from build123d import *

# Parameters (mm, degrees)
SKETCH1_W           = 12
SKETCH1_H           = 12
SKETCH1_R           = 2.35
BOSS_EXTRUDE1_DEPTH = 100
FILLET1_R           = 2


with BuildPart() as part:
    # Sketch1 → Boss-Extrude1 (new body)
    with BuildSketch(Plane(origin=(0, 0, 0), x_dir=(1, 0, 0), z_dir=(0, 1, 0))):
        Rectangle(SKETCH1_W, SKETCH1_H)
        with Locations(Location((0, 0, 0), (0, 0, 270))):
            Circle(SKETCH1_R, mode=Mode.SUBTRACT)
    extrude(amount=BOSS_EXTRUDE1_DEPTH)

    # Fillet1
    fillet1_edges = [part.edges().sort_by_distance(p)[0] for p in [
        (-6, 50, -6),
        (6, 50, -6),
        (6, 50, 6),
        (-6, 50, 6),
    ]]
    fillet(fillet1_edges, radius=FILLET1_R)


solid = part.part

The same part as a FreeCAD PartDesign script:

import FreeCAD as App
import Part
import Sketcher

V = App.Vector


def edges_at(feature, points):
    """Names of the edges that pass closest to the given points."""
    edges = feature.Shape.Edges
    near = lambda p: min(range(len(edges)), key=lambda i: edges[i].distToShape(Part.Vertex(*p))[0])
    return sorted({f"Edge{near(p) + 1}" for p in points})

doc = App.newDocument("Part")
body = doc.addObject("PartDesign::Body", "Body")

# Sketch on XZ plane
sketch1 = body.newObject("Sketcher::SketchObject", "Sketch")
sketch1.AttachmentSupport = (doc.getObject("XZ_Plane"), [""])
sketch1.MapMode = "FlatFace"
sketch1.addGeometry(Part.LineSegment(V(-6, -6, 0), V(-6, 6, 0)), False)
sketch1.addGeometry(Part.LineSegment(V(-6, 6, 0), V(6, 6, 0)), False)
sketch1.addGeometry(Part.LineSegment(V(6, 6, 0), V(6, -6, 0)), False)
sketch1.addGeometry(Part.LineSegment(V(6, -6, 0), V(-6, -6, 0)), False)
sketch1.addGeometry(Part.Circle(V(0, 0, 0), V(0, 0, 1), 2.35), False)
sketch1.addConstraint(Sketcher.Constraint("Coincident", 0, 2, 1, 1))
sketch1.addConstraint(Sketcher.Constraint("Coincident", 1, 2, 2, 1))
sketch1.addConstraint(Sketcher.Constraint("Coincident", 2, 2, 3, 1))
sketch1.addConstraint(Sketcher.Constraint("Coincident", 3, 2, 0, 1))
sketch1.addConstraint(Sketcher.Constraint("Vertical", 0))
sketch1.addConstraint(Sketcher.Constraint("Horizontal", 1))
sketch1.addConstraint(Sketcher.Constraint("Vertical", 2))
sketch1.addConstraint(Sketcher.Constraint("Horizontal", 3))
sketch1.addConstraint(Sketcher.Constraint("Coincident", 4, 3, -1, 1))
sketch1.addConstraint(Sketcher.Constraint("Symmetric", 0, 2, 2, 2, -1, 1))
sketch1.addConstraint(Sketcher.Constraint("Equal", 3, 0))
sketch1.addConstraint(Sketcher.Constraint("Diameter", 4, 4.7))
sketch1.addConstraint(Sketcher.Constraint("DistanceX", 1, 1, 1, 2, 12.0))
pad1 = body.newObject("PartDesign::Pad", "Pad")
pad1.Profile = sketch1
pad1.Length = 100
pad1.Reversed = True
doc.recompute()

fillet = body.newObject("PartDesign::Fillet", "Fillet")
fillet.Base = (pad1, edges_at(pad1, [
    (-6, 50, -6),
    (6, 50, -6),
    (6, 50, 6),
    (-6, 50, 6),
]))
fillet.Radius = 2

doc.recompute()
